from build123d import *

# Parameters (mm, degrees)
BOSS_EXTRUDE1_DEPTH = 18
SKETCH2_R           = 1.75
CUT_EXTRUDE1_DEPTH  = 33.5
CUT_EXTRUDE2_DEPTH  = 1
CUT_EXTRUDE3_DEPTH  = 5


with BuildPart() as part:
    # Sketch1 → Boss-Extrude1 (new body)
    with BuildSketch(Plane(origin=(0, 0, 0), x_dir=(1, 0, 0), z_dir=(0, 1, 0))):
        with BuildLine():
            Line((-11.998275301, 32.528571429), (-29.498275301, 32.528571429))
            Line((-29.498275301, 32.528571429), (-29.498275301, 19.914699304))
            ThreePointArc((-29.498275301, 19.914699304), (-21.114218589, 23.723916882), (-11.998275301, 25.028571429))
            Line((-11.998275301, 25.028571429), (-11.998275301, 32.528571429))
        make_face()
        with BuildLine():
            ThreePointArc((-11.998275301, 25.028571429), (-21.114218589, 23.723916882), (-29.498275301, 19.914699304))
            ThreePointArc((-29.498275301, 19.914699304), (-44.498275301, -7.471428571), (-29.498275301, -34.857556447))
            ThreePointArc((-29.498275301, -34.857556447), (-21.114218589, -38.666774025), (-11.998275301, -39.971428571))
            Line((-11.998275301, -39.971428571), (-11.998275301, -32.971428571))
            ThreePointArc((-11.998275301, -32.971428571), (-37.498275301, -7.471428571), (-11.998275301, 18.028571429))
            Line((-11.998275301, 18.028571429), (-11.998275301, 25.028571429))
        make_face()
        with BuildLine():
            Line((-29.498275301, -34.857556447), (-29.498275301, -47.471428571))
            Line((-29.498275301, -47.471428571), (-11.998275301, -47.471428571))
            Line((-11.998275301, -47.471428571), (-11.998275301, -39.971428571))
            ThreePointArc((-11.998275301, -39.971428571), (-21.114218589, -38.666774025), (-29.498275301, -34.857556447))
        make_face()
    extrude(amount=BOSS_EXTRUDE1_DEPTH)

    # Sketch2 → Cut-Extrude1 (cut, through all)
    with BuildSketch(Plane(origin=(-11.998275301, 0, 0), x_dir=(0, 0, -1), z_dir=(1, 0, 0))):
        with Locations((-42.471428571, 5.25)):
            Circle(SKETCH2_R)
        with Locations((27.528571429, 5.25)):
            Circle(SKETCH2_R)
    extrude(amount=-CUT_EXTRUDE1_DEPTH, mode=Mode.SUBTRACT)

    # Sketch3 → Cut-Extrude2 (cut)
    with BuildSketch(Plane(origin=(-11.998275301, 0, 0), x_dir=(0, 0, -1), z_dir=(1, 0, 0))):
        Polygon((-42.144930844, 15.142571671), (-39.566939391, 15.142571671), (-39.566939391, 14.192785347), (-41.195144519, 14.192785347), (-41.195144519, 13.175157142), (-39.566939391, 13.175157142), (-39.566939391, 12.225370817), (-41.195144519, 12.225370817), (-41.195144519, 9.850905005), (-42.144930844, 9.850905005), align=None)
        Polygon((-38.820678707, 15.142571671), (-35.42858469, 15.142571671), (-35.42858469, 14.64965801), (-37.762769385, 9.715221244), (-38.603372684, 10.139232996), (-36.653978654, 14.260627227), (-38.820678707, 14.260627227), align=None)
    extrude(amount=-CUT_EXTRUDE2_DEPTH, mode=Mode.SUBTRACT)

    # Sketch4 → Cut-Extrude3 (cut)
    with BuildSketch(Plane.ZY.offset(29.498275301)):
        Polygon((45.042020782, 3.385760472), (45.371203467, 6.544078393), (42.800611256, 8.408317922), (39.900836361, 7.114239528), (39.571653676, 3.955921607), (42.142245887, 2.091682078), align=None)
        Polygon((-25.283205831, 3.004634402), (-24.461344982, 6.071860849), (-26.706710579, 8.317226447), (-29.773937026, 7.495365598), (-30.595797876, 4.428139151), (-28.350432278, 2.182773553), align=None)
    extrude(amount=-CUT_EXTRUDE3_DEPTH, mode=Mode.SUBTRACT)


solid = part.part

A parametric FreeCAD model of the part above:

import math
import FreeCAD as App
import Part
import Sketcher

V = App.Vector

doc = App.newDocument("Part")
body = doc.addObject("PartDesign::Body", "Body")

# Sketch on XZ plane
sketch1 = doc.addObject("Sketcher::SketchObject", "Sketch")
body.addObject(sketch1)
sketch1.AttachmentSupport = (doc.XZ_Plane, [""])
sketch1.MapMode = "FlatFace"
sketch1.addGeometry([
    Part.LineSegment(V(-12, -33, 0), V(-29, -33, 0)),  # 0
    Part.LineSegment(V(-29, -33, 0), V(-29, -20, 0)),  # 1
    Part.ArcOfCircle(Part.Circle(V(-12, 7, 0), V(0, 0, 1), 32), math.radians(123), math.radians(237)),  # 2
    Part.LineSegment(V(-29, 35, 0), V(-29, 47, 0)),  # 3
    Part.LineSegment(V(-29, 47, 0), V(-12, 47, 0)),  # 4
    Part.LineSegment(V(-12, 47, 0), V(-12, 33, 0)),  # 5
    Part.ArcOfCircle(Part.Circle(V(-12, 7, 0), V(0, 0, 1), 26), math.radians(90), math.radians(270)),  # 6
    Part.LineSegment(V(-12, -18, 0), V(-12, -33, 0)),  # 7
], False)
sketch1.addConstraint([
    Sketcher.Constraint("Coincident", 0, 2, 1, 1),
    Sketcher.Constraint("Coincident", 1, 2, 2, 2),
    Sketcher.Constraint("Coincident", 2, 1, 3, 1),
    Sketcher.Constraint("Coincident", 3, 2, 4, 1),
    Sketcher.Constraint("Coincident", 4, 2, 5, 1),
    Sketcher.Constraint("Coincident", 5, 2, 6, 1),
    Sketcher.Constraint("Coincident", 6, 2, 7, 1),
    Sketcher.Constraint("Coincident", 7, 2, 0, 1),
    Sketcher.Constraint("Horizontal", 0),
    Sketcher.Constraint("Vertical", 1),
    Sketcher.Constraint("Vertical", 3),
    Sketcher.Constraint("Horizontal", 4),
    Sketcher.Constraint("Vertical", 5),
    Sketcher.Constraint("Vertical", 7),
    Sketcher.Constraint("Coincident", 6, 3, 2, 3),
    Sketcher.Constraint("Vertical", 1, 2, 2, 1),
    Sketcher.Constraint("Vertical", 6, 3, 4, 2),
    Sketcher.Constraint("Vertical", 5, 2, 6, 2),
    Sketcher.Constraint("Equal", 1, 3),
    Sketcher.Constraint("Radius", 2, 32.5),
    Sketcher.Constraint("Radius", 6, 25.5),
    Sketcher.Constraint("DistanceX", 0, 2, 0, 1, 17.5),
    Sketcher.Constraint("DistanceY", 5, 2, 5, 1, 14.5),
    Sketcher.Constraint("DistanceY", 1, 2, -1, 1, 19.914699),
    Sketcher.Constraint("DistanceX", 2, 3, -1, 1, 11.998275),
])
pad1 = doc.addObject("PartDesign::Pad", "Pad")
body.addObject(pad1)
pad1.Profile = sketch1
pad1.Length = 18
pad1.Reversed = True

# Sketch on YZ plane
sketch2 = doc.addObject("Sketcher::SketchObject", "Sketch001")
body.addObject(sketch2)
sketch2.AttachmentSupport = (doc.YZ_Plane, [""])
sketch2.MapMode = "FlatFace"
sketch2.AttachmentOffset = App.Placement(V(0, 0, -11.998275), App.Rotation())
sketch2.addGeometry([
    Part.Circle(V(5.2, 42.5, 0), V(0, 0, 1), 1.8),
    Part.Circle(V(5.2, -27.5, 0), V(0, 0, 1), 1.8),
], False)
sketch2.addConstraint([
    Sketcher.Constraint("Equal", 0, 1),
    Sketcher.Constraint("Vertical", 0, 3, 1, 3),
    Sketcher.Constraint("Diameter", 0, 3.5),
    Sketcher.Constraint("DistanceY", 1, 3, 0, 3, 70.0),
    Sketcher.Constraint("DistanceX", -1, 1, 0, 3, 5.25),
    Sketcher.Constraint("DistanceY", -1, 1, 0, 3, 42.471429),
])
pocket1 = doc.addObject("PartDesign::Pocket", "Pocket")
body.addObject(pocket1)
pocket1.Profile = sketch2
pocket1.Type = "ThroughAll"

# Sketch on YZ plane
sketch3 = doc.addObject("Sketcher::SketchObject", "Sketch002")
body.addObject(sketch3)
sketch3.AttachmentSupport = (doc.YZ_Plane, [""])
sketch3.MapMode = "FlatFace"
sketch3.AttachmentOffset = App.Placement(V(0, 0, -11.998275), App.Rotation())
sketch3.addGeometry([
    Part.LineSegment(V(15.14, 39.57, 0), V(15.14, 42.14, 0)),  # 0
    Part.LineSegment(V(15.14, 42.14, 0), V(9.85, 42.14, 0)),  # 1
    Part.LineSegment(V(9.85, 42.14, 0), V(9.85, 41.2, 0)),  # 2
    Part.LineSegment(V(9.85, 41.2, 0), V(12.23, 41.2, 0)),  # 3
    Part.LineSegment(V(12.23, 41.2, 0), V(12.23, 39.57, 0)),  # 4
    Part.LineSegment(V(12.23, 39.57, 0), V(13.18, 39.57, 0)),  # 5
    Part.LineSegment(V(13.18, 39.57, 0), V(13.18, 41.2, 0)),  # 6
    Part.LineSegment(V(13.18, 41.2, 0), V(14.19, 41.2, 0)),  # 7
    Part.LineSegment(V(14.19, 41.2, 0), V(14.19, 39.57, 0)),  # 8
    Part.LineSegment(V(14.19, 39.57, 0), V(15.14, 39.57, 0)),  # 9
    Part.LineSegment(V(15.14, 35.43, 0), V(15.14, 38.82, 0)),  # 10
    Part.LineSegment(V(15.14, 38.82, 0), V(14.26, 38.82, 0)),  # 11
    Part.LineSegment(V(14.26, 38.82, 0), V(14.26, 36.65, 0)),  # 12
    Part.LineSegment(V(14.26, 36.65, 0), V(10.14, 38.6, 0)),  # 13
    Part.LineSegment(V(10.14, 38.6, 0), V(9.72, 37.76, 0)),  # 14
    Part.LineSegment(V(9.72, 37.76, 0), V(14.65, 35.43, 0)),  # 15
    Part.LineSegment(V(14.65, 35.43, 0), V(15.14, 35.43, 0)),  # 16
], False)
sketch3.addConstraint([
    Sketcher.Constraint("Coincident", 0, 2, 1, 1),
    Sketcher.Constraint("Coincident", 1, 2, 2, 1),
    Sketcher.Constraint("Coincident", 2, 2, 3, 1),
    Sketcher.Constraint("Coincident", 3, 2, 4, 1),
    Sketcher.Constraint("Coincident", 4, 2, 5, 1),
    Sketcher.Constraint("Coincident", 5, 2, 6, 1),
    Sketcher.Constraint("Coincident", 6, 2, 7, 1),
    Sketcher.Constraint("Coincident", 7, 2, 8, 1),
    Sketcher.Constraint("Coincident", 8, 2, 9, 1),
    Sketcher.Constraint("Coincident", 9, 2, 0, 1),
    Sketcher.Constraint("Coincident", 10, 2, 11, 1),
    Sketcher.Constraint("Coincident", 11, 2, 12, 1),
    Sketcher.Constraint("Coincident", 12, 2, 13, 1),
    Sketcher.Constraint("Coincident", 13, 2, 14, 1),
    Sketcher.Constraint("Coincident", 14, 2, 15, 1),
    Sketcher.Constraint("Coincident", 15, 2, 16, 1),
    Sketcher.Constraint("Coincident", 16, 2, 10, 1),
    Sketcher.Constraint("Vertical", 0),
    Sketcher.Constraint("Horizontal", 1),
    Sketcher.Constraint("Vertical", 2),
    Sketcher.Constraint("Horizontal", 3),
    Sketcher.Constraint("Vertical", 4),
    Sketcher.Constraint("Horizontal", 5),
    Sketcher.Constraint("Vertical", 6),
    Sketcher.Constraint("Horizontal", 7),
    Sketcher.Constraint("Vertical", 8),
    Sketcher.Constraint("Horizontal", 9),
    Sketcher.Constraint("Vertical", 10),
    Sketcher.Constraint("Horizontal", 11),
    Sketcher.Constraint("Vertical", 12),
    Sketcher.Constraint("Horizontal", 16),
    Sketcher.Constraint("Horizontal", 3, 2, 6, 2),
    Sketcher.Constraint("Horizontal", 5, 2, 8, 2),
    Sketcher.Constraint("Vertical", 9, 2, 10, 2),
    Sketcher.Constraint("Equal", 5, 9),
    Sketcher.Constraint("Equal", 9, 2),
    Sketcher.Constraint("DistanceY", 12, 2, 12, 1, 2.1667),
    Sketcher.Constraint("DistanceX", 7, 1, 7, 2, 1.017628),
    Sketcher.Constraint("DistanceY", 0, 1, 0, 2, 2.577991),
    Sketcher.Constraint("DistanceX", 3, 2, 0, 2, 2.917201),
    Sketcher.Constraint("Distance", 13, 4.55917),
    Sketcher.Constraint("Distance", 14, 0.941488),
    Sketcher.Constraint("Distance", 15, 5.458671),
    Sketcher.Constraint("DistanceX", 1, 2, 1, 1, 5.291667),
    Sketcher.Constraint("DistanceX", 11, 2, 11, 1, 0.881944),
    Sketcher.Constraint("DistanceX", 16, 1, 16, 2, 0.492914),
    Sketcher.Constraint("DistanceY", 10, 1, 10, 2, 3.392094),
    Sketcher.Constraint("DistanceX", -1, 1, 0, 2, 15.142572),
    Sketcher.Constraint("DistanceY", -1, 1, 0, 2, 42.144931),
    Sketcher.Constraint("DistanceY", -1, 1, 10, 2, 38.820679),
    Sketcher.Constraint("DistanceX", -1, 1, 14, 2, 9.715221),
])
pocket2 = doc.addObject("PartDesign::Pocket", "Pocket001")
body.addObject(pocket2)
pocket2.Profile = sketch3
pocket2.Length = 1

# Sketch on YZ plane
sketch4 = doc.addObject("Sketcher::SketchObject", "Sketch003")
body.addObject(sketch4)
sketch4.AttachmentSupport = (doc.YZ_Plane, [""])
sketch4.MapMode = "FlatFace"
sketch4.AttachmentOffset = App.Placement(V(0, 0, -29.498275), App.Rotation())
sketch4.addGeometry([
    Part.LineSegment(V(3.38576, 45.042021, 0), V(6.544078, 45.371203, 0)),  # 0
    Part.LineSegment(V(6.544078, 45.371203, 0), V(8.408318, 42.800611, 0)),  # 1
    Part.LineSegment(V(8.408318, 42.800611, 0), V(7.11424, 39.900836, 0)),  # 2
    Part.LineSegment(V(7.11424, 39.900836, 0), V(3.955922, 39.571654, 0)),  # 3
    Part.LineSegment(V(3.955922, 39.571654, 0), V(2.091682, 42.142246, 0)),  # 4
    Part.LineSegment(V(2.091682, 42.142246, 0), V(3.38576, 45.042021, 0)),  # 5
    Part.LineSegment(V(3.004634, -25.283206, 0), V(6.071861, -24.461345, 0)),  # 6
    Part.LineSegment(V(6.071861, -24.461345, 0), V(8.317226, -26.706711, 0)),  # 7
    Part.LineSegment(V(8.317226, -26.706711, 0), V(7.495366, -29.773937, 0)),  # 8
    Part.LineSegment(V(7.495366, -29.773937, 0), V(4.428139, -30.595798, 0)),  # 9
    Part.LineSegment(V(4.428139, -30.595798, 0), V(2.182774, -28.350432, 0)),  # 10
    Part.LineSegment(V(2.182774, -28.350432, 0), V(3.004634, -25.283206, 0)),  # 11
], False)
sketch4.addConstraint([
    Sketcher.Constraint("Coincident", 0, 2, 1, 1),
    Sketcher.Constraint("Coincident", 1, 2, 2, 1),
    Sketcher.Constraint("Coincident", 2, 2, 3, 1),
    Sketcher.Constraint("Coincident", 3, 2, 4, 1),
    Sketcher.Constraint("Coincident", 4, 2, 5, 1),
    Sketcher.Constraint("Coincident", 5, 2, 0, 1),
    Sketcher.Constraint("Coincident", 6, 2, 7, 1),
    Sketcher.Constraint("Coincident", 7, 2, 8, 1),
    Sketcher.Constraint("Coincident", 8, 2, 9, 1),
    Sketcher.Constraint("Coincident", 9, 2, 10, 1),
    Sketcher.Constraint("Coincident", 10, 2, 11, 1),
    Sketcher.Constraint("Coincident", 11, 2, 6, 1),
    Sketcher.Constraint("DistanceY", 6, 2, 3, 2, 64.032999),
    Sketcher.Constraint("DistanceX", 5, 2, 6, 2, 2.6861),
    Sketcher.Constraint("DistanceX", 9, 2, 2, 2, 2.6861),
    Sketcher.Constraint("DistanceX", -1, 1, 0, 2, 6.544078),
    Sketcher.Constraint("DistanceY", -1, 1, 1, 2, 42.800611),
    Sketcher.Constraint("DistanceX", -1, 1, 2, 2, 7.11424),
    Sketcher.Constraint("DistanceX", -1, 1, 3, 2, 3.955922),
    Sketcher.Constraint("DistanceX", -1, 1, 5, 2, 3.38576),
    Sketcher.Constraint("DistanceY", -1, 1, 5, 2, 45.042021),
    Sketcher.Constraint("DistanceY", 7, 2, -1, 1, 26.706711),
    Sketcher.Constraint("DistanceX", 0, 2, 1, 2, 1.86424),
    Sketcher.Constraint("DistanceY", 3, 2, 0, 2, 5.79955),
    Sketcher.Constraint("DistanceX", 4, 2, 3, 2, 1.86424),
    Sketcher.Constraint("DistanceY", 2, 2, 4, 2, 2.24141),
    Sketcher.Constraint("DistanceY", 6, 2, 2, 2, 64.362181),
    Sketcher.Constraint("DistanceX", 7, 2, 1, 2, 0.091091),
    Sketcher.Constraint("DistanceX", 8, 2, 7, 2, 0.821861),
    Sketcher.Constraint("DistanceY", 8, 2, 3, 2, 69.345591),
    Sketcher.Constraint("DistanceY", 9, 2, 8, 2, 0.821861),
    Sketcher.Constraint("DistanceY", 10, 2, 7, 2, 1.643722),
    Sketcher.Constraint("DistanceX", 10, 2, 3, 2, 1.773148),
    Sketcher.Constraint("DistanceX", 10, 2, 11, 2, 0.821861),
    Sketcher.Constraint("DistanceY", 11, 2, 6, 2, 0.821861),
    Sketcher.Constraint("Distance", 0, 3.175426),
])
pocket3 = doc.addObject("PartDesign::Pocket", "Pocket002")
body.addObject(pocket3)
pocket3.Profile = sketch4
pocket3.Length = 5
pocket3.Reversed = True

doc.recompute()
